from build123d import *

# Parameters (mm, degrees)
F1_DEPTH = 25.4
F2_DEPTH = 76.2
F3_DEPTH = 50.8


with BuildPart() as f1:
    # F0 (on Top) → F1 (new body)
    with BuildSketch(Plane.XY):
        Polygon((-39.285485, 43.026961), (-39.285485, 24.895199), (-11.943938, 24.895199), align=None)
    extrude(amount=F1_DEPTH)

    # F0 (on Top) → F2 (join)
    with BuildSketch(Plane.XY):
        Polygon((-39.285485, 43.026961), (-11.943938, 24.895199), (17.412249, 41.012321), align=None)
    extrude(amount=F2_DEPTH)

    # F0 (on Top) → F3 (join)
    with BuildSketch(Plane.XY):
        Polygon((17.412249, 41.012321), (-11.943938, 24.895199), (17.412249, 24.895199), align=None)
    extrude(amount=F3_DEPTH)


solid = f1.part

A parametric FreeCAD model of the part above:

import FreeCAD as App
import Part
import Sketcher
from FreeCAD import Vector
Q = App.Units.Quantity


def add_polygon(sketch, points):
    """Adds a closed chain of lines whose ends are joined by coincident constraints."""
    first, n = sketch.GeometryCount, len(points)
    for a, b in zip(points, points[1:] + points[:1]):
        sketch.addGeometry(Part.LineSegment(App.Vector(*a, 0), App.Vector(*b, 0)), False)
    for i in range(n):
        sketch.addConstraint(Sketcher.Constraint("Coincident", first + i, 2, first + (i + 1) % n, 1))

doc = App.newDocument("Part")
body = doc.addObject("PartDesign::Body", "Body")

# Sketch on XY plane
sketch1 = body.newObject("Sketcher::SketchObject", "Sketch")
sketch1.AttachmentSupport = (doc.getObject("XY_Plane"), [""])
sketch1.MapMode = "FlatFace"
add_polygon(sketch1, [(-39, 43), (-39, 25), (-12, 25)])  # lines 0-2
sketch1.addConstraint(Sketcher.Constraint("Vertical", 0))
sketch1.addConstraint(Sketcher.Constraint("Horizontal", 1))
sketch1.addConstraint(Sketcher.Constraint("DistanceY", 0, 2, 0, 1, Q("18.131762 mm")))
sketch1.addConstraint(Sketcher.Constraint("DistanceY", -1, 1, 0, 2, Q("24.895199 mm")))
sketch1.addConstraint(Sketcher.Constraint("Distance", 2, Q("32.807331 mm")))
sketch1.addConstraint(Sketcher.Constraint("DistanceX", 0, 2, -1, 1, Q("39.285485 mm")))
pad1 = body.newObject("PartDesign::Pad", "Pad")
pad1.Profile = sketch1
pad1.Length = Q("1 in")

# Sketch on XY plane
sketch2 = body.newObject("Sketcher::SketchObject", "Sketch001")
sketch2.AttachmentSupport = (doc.getObject("XY_Plane"), [""])
sketch2.MapMode = "FlatFace"
add_polygon(sketch2, [(-39, 43), (-12, 25), (17, 41)])  # lines 0-2
sketch2.addConstraint(Sketcher.Constraint("DistanceY", -1, 1, 0, 2, Q("24.895199 mm")))
sketch2.addConstraint(Sketcher.Constraint("Distance", 0, Q("32.807331 mm")))
sketch2.addConstraint(Sketcher.Constraint("Distance", 1, Q("33.489511 mm")))
sketch2.addConstraint(Sketcher.Constraint("DistanceX", -1, 1, 1, 2, Q("17.412249 mm")))
sketch2.addConstraint(Sketcher.Constraint("DistanceY", -1, 1, 1, 2, Q("41.012321 mm")))
sketch2.addConstraint(Sketcher.Constraint("DistanceY", -1, 1, 2, 2, Q("43.026961 mm")))
pad2 = body.newObject("PartDesign::Pad", "Pad001")
pad2.Profile = sketch2
pad2.Length = Q("3 in")

# Sketch on XY plane
sketch3 = body.newObject("Sketcher::SketchObject", "Sketch002")
sketch3.AttachmentSupport = (doc.getObject("XY_Plane"), [""])
sketch3.MapMode = "FlatFace"
add_polygon(sketch3, [(17, 41), (-12, 25), (17, 25)])  # lines 0-2
sketch3.addConstraint(Sketcher.Constraint("Horizontal", 1))
sketch3.addConstraint(Sketcher.Constraint("Vertical", 2))
sketch3.addConstraint(Sketcher.Constraint("DistanceY", 2, 1, 2, 2, Q("16.117122 mm")))
sketch3.addConstraint(Sketcher.Constraint("DistanceY", -1, 1, 0, 2, Q("24.895199 mm")))
sketch3.addConstraint(Sketcher.Constraint("Distance", 0, Q("33.489511 mm")))
sketch3.addConstraint(Sketcher.Constraint("DistanceX", -1, 1, 1, 2, Q("17.412249 mm")))
pad3 = body.newObject("PartDesign::Pad", "Pad002")
pad3.Profile = sketch3
pad3.Length = Q("2 in")

doc.recompute()
